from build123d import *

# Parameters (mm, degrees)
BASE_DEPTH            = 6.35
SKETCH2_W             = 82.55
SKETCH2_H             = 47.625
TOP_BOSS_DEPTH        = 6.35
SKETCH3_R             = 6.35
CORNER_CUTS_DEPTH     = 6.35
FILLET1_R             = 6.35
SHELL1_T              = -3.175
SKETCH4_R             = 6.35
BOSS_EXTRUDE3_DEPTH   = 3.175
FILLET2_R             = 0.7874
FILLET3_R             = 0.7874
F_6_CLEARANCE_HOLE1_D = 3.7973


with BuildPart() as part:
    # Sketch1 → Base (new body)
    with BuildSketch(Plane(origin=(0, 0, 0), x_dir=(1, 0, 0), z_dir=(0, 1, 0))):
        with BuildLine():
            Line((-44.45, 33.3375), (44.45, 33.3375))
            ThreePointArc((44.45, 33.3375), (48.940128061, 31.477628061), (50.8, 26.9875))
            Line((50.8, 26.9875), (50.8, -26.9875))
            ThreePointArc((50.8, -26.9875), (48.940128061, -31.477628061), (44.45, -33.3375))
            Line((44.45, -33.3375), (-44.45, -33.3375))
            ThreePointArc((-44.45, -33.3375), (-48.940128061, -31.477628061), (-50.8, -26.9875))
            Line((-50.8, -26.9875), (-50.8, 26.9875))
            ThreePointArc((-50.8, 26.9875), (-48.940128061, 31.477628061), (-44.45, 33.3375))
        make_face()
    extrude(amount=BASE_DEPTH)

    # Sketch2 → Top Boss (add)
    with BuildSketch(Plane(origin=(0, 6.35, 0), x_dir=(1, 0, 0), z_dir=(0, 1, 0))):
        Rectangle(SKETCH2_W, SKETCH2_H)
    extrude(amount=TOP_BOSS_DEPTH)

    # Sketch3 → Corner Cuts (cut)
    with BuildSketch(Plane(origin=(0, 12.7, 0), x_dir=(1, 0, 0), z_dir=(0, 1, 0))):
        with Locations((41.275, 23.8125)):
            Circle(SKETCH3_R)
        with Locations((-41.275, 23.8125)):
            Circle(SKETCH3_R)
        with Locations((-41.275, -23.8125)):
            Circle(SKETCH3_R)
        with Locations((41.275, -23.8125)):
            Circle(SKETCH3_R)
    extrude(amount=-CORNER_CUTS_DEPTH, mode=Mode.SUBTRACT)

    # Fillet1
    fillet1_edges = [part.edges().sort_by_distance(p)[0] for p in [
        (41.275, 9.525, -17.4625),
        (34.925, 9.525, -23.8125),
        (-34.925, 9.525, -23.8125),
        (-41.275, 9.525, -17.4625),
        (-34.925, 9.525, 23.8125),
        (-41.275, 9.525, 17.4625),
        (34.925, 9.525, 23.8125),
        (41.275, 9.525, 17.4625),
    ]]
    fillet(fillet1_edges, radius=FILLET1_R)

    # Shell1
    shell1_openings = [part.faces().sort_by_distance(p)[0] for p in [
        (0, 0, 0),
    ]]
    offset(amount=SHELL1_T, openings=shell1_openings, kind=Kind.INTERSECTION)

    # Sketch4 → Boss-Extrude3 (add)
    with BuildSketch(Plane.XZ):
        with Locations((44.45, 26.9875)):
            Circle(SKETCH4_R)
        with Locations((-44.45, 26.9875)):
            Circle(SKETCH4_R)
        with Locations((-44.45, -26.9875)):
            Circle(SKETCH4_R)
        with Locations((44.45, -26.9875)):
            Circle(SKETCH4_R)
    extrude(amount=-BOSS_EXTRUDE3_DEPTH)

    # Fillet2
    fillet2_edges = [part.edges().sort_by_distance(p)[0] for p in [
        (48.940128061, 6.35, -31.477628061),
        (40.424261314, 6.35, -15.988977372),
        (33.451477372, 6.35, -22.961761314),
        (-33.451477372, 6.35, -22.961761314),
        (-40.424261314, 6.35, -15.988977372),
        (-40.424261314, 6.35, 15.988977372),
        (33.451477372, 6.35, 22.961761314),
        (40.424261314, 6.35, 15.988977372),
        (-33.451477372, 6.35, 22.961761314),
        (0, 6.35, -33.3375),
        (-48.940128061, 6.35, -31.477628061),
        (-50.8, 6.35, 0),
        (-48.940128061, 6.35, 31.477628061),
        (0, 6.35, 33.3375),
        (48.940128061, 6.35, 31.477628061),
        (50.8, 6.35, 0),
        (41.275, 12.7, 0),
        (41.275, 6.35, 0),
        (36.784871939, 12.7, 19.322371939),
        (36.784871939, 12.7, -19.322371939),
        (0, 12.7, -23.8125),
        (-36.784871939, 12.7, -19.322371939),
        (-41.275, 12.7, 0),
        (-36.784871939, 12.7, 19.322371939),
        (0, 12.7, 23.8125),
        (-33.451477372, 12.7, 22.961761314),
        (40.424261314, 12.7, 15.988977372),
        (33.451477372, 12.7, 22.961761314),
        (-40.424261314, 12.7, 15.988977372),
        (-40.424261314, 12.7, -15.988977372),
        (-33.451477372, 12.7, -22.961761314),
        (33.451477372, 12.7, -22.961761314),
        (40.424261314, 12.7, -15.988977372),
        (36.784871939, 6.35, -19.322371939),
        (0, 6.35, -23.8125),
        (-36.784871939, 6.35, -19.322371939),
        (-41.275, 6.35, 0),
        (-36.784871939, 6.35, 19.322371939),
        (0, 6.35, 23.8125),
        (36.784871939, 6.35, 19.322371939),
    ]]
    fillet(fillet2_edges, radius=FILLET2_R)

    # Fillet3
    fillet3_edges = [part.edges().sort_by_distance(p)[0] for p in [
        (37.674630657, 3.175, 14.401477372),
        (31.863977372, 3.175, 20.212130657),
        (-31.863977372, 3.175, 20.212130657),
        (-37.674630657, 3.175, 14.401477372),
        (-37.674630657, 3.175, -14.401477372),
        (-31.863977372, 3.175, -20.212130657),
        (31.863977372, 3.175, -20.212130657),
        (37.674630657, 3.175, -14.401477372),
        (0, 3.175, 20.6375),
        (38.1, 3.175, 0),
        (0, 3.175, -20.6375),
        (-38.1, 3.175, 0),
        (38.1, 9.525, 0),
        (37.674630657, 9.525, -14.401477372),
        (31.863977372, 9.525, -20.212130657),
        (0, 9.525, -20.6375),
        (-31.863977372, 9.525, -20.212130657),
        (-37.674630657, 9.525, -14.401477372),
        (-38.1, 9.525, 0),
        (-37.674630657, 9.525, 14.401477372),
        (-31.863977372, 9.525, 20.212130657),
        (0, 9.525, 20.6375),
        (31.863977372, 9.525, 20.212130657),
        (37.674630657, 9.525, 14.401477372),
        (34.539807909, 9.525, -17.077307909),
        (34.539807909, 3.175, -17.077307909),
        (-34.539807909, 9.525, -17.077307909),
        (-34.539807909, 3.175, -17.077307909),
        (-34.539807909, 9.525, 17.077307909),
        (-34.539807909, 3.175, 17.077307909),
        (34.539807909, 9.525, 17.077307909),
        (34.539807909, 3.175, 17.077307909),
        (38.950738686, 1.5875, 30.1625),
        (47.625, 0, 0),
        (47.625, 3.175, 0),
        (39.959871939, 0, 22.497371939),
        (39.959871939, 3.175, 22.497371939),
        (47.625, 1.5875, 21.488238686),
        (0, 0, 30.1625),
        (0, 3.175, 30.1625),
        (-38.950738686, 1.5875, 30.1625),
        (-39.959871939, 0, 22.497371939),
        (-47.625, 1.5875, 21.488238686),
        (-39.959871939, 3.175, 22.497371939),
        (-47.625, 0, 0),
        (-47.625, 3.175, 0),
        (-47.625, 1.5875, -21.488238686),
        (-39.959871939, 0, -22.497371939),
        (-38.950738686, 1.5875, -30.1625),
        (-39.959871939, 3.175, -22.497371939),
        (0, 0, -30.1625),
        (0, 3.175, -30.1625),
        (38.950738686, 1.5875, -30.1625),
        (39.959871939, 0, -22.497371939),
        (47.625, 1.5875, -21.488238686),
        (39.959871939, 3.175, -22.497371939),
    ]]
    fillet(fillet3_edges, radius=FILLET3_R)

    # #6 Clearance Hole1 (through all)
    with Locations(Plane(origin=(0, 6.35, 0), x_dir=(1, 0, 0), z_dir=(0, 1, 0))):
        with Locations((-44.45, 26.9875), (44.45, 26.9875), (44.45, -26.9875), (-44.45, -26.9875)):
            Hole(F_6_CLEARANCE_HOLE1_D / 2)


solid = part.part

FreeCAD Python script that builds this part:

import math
import FreeCAD as App
import Part
import Sketcher

V = App.Vector
Q = App.Units.Quantity


def edges_at(feature, points):
    """Names of the edges that pass closest to the given points."""
    edges = feature.Shape.Edges
    near = lambda p: min(range(len(edges)), key=lambda i: edges[i].distToShape(Part.Vertex(*p))[0])
    return sorted({f"Edge{near(p) + 1}" for p in points})


def faces_at(feature, points):
    """Names of the faces that lie closest to the given points."""
    faces = feature.Shape.Faces
    near = lambda p: min(range(len(faces)), key=lambda i: faces[i].distToShape(Part.Vertex(*p))[0])
    return sorted({f"Face{near(p) + 1}" for p in points})


def add_polygon(sketch, points):
    """Adds a closed chain of lines whose ends are joined by coincident constraints."""
    first, n = sketch.GeometryCount, len(points)
    for a, b in zip(points, points[1:] + points[:1]):
        sketch.addGeometry(Part.LineSegment(App.Vector(*a, 0), App.Vector(*b, 0)), False)
    for i in range(n):
        sketch.addConstraint(Sketcher.Constraint("Coincident", first + i, 2, first + (i + 1) % n, 1))

doc = App.newDocument("Part")
params = doc.addObject("Spreadsheet::Sheet", "Params")
for row, (alias, value) in enumerate([
    ("sketch1_radius", "0.25 in"),
    ("sketch1_width", "3.5 in"),
    ("sketch1_height", "2.125 in"),
    ("pad1_length", "0.25 in"),
    ("sketch2_width", "3.25 in"),
    ("sketch2_height", "1.875 in"),
    ("pad2_length", "0.25 in"),
    ("sketch3_diameter", "0.5 in"),
    ("pocket1_length", "0.25 in"),
    ("fillet_radius", "0.25 in"),
    ("thickness_wall", "0.125 in"),
    ("sketch4_diameter", "0.5 in"),
    ("pad3_length", "0.125 in"),
    ("fillet2_radius", "0.031 in"),
    ("fillet3_radius", "0.031 in"),
    ("hole_diameter", "0.1495 in"),
], start=1):
    params.set(f"A{row}", alias)
    params.set(f"B{row}", "=" + value)
    params.setAlias(f"B{row}", alias)

body = doc.addObject("PartDesign::Body", "Body")

# Sketch on XZ plane
sketch1 = doc.addObject("Sketcher::SketchObject", "Sketch")
body.addObject(sketch1)
sketch1.AttachmentSupport = (doc.XZ_Plane, [""])
sketch1.MapMode = "FlatFace"
sketch1.addGeometry([
    Part.LineSegment(V(44, -33, 0), V(-44, -33, 0)),  # 0
    Part.ArcOfCircle(Part.Circle(V(-44, -27, 0), V(0, 0, 1), 6), math.radians(180), math.radians(270)),  # 1
    Part.LineSegment(V(-51, -27, 0), V(-51, 27, 0)),  # 2
    Part.ArcOfCircle(Part.Circle(V(-44, 27, 0), V(0, 0, 1), 6), math.radians(90), math.radians(180)),  # 3
    Part.LineSegment(V(-44, 33, 0), V(44, 33, 0)),  # 4
    Part.ArcOfCircle(Part.Circle(V(44, 27, 0), V(0, 0, 1), 6), math.radians(0), math.radians(90)),  # 5
    Part.LineSegment(V(51, 27, 0), V(51, -27, 0)),  # 6
    Part.ArcOfCircle(Part.Circle(V(44, -27, 0), V(0, 0, 1), 6), math.radians(-90), math.radians(0)),  # 7
], False)
sketch1.addConstraint([
    Sketcher.Constraint("Tangent", 0, 2, 1, 2),
    Sketcher.Constraint("Tangent", 1, 1, 2, 1),
    Sketcher.Constraint("Tangent", 2, 2, 3, 2),
    Sketcher.Constraint("Tangent", 3, 1, 4, 1),
    Sketcher.Constraint("Tangent", 4, 2, 5, 2),
    Sketcher.Constraint("Tangent", 5, 1, 6, 1),
    Sketcher.Constraint("Tangent", 6, 2, 7, 2),
    Sketcher.Constraint("Tangent", 7, 1, 0, 1),
    Sketcher.Constraint("Horizontal", 0),
    Sketcher.Constraint("Vertical", 2),
    Sketcher.Constraint("Horizontal", 4),
    Sketcher.Constraint("Vertical", 6),
    Sketcher.Constraint("Equal", 1, 3),
    Sketcher.Constraint("Equal", 3, 5),
    Sketcher.Constraint("Equal", 5, 7),
    Sketcher.Constraint("Symmetric", 1, 3, 5, 3, -1, 1),
    Sketcher.Constraint("Radius", 1, Q("0.25 in")),
    Sketcher.Constraint("DistanceX", 0, 2, 0, 1, Q("3.5 in")),
    Sketcher.Constraint("DistanceY", 2, 1, 2, 2, Q("2.125 in")),
])
sketch1.setExpression("Constraints[16]", "Params.sketch1_radius")
sketch1.setExpression("Constraints[17]", "Params.sketch1_width")
sketch1.setExpression("Constraints[18]", "Params.sketch1_height")
pad1 = doc.addObject("PartDesign::Pad", "Pad")
body.addObject(pad1)
pad1.Profile = sketch1
pad1.setExpression("Length", "Params.pad1_length")
pad1.Reversed = True

# Sketch on XZ plane
sketch2 = doc.addObject("Sketcher::SketchObject", "Sketch001")
body.addObject(sketch2)
sketch2.AttachmentSupport = (doc.XZ_Plane, [""])
sketch2.MapMode = "FlatFace"
sketch2.AttachmentOffset = App.Placement(V(0, 0, -0.25 * 25.4), App.Rotation())
add_polygon(sketch2, [(-41, -24), (-41, 24), (41, 24), (41, -24)])  # lines 0-3
sketch2.addConstraint([
    Sketcher.Constraint("Vertical", 0),
    Sketcher.Constraint("Horizontal", 1),
    Sketcher.Constraint("Vertical", 2),
    Sketcher.Constraint("Horizontal", 3),
    Sketcher.Constraint("Symmetric", 0, 2, 2, 2, -1, 1),
    Sketcher.Constraint("DistanceX", 1, 1, 1, 2, Q("3.25 in")),
    Sketcher.Constraint("DistanceY", 0, 1, 0, 2, Q("1.875 in")),
])
sketch2.setExpression("Constraints[9]", "Params.sketch2_width")
sketch2.setExpression("Constraints[10]", "Params.sketch2_height")
pad2 = doc.addObject("PartDesign::Pad", "Pad001")
body.addObject(pad2)
pad2.Profile = sketch2
pad2.setExpression("Length", "Params.pad2_length")
pad2.Reversed = True

# Sketch on XZ plane
sketch3 = doc.addObject("Sketcher::SketchObject", "Sketch002")
body.addObject(sketch3)
sketch3.AttachmentSupport = (doc.XZ_Plane, [""])
sketch3.MapMode = "FlatFace"
sketch3.AttachmentOffset = App.Placement(V(0, 0, -0.5 * 25.4), App.Rotation())
sketch3.addGeometry([
    Part.Circle(V(41, -24, 0), V(0, 0, 1), 6),
    Part.Circle(V(-41, -24, 0), V(0, 0, 1), 6),
    Part.Circle(V(-41, 24, 0), V(0, 0, 1), 6),
    Part.Circle(V(41, 24, 0), V(0, 0, 1), 6),
], False)
sketch3.addConstraint([
    Sketcher.Constraint("Equal", 0, 1),
    Sketcher.Constraint("Equal", 1, 2),
    Sketcher.Constraint("Equal", 2, 3),
    Sketcher.Constraint("Symmetric", 0, 3, 2, 3, -1, 1),
    Sketcher.Constraint("Symmetric", 1, 3, 3, 3, -1, 1),
    Sketcher.Constraint("Symmetric", 0, 3, 1, 3, -2),
    Sketcher.Constraint("Diameter", 0, Q("0.5 in")),
    Sketcher.Constraint("DistanceX", 1, 3, 0, 3, Q("3.25 in")),
    Sketcher.Constraint("DistanceY", 0, 3, -1, 1, Q("0.9375 in")),
])
sketch3.setExpression("Constraints[6]", "Params.sketch3_diameter")
pocket1 = doc.addObject("PartDesign::Pocket", "Pocket")
body.addObject(pocket1)
pocket1.Profile = sketch3
pocket1.setExpression("Length", "Params.pocket1_length")
pocket1.Reversed = True
doc.recompute()

fillet = doc.addObject("PartDesign::Fillet", "Fillet")
body.addObject(fillet)
fillet.Base = (pocket1, edges_at(pocket1, [
    (41.275, 9.525, -17.462),
    (34.925, 9.525, -23.812),
    (-34.925, 9.525, -23.812),
    (-41.275, 9.525, -17.462),
    (-34.925, 9.525, 23.812),
    (-41.275, 9.525, 17.462),
    (34.925, 9.525, 23.812),
    (41.275, 9.525, 17.462),
]))
fillet.setExpression("Radius", "Params.fillet_radius")
doc.recompute()

thickness = doc.addObject("PartDesign::Thickness", "Thickness")
body.addObject(thickness)
thickness.Base = (fillet, faces_at(fillet, [(0, 0, 0)]))
thickness.setExpression("Value", "Params.thickness_wall")
thickness.Reversed = True
thickness.Join = "Intersection"

# Sketch on XZ plane
sketch4 = doc.addObject("Sketcher::SketchObject", "Sketch003")
body.addObject(sketch4)
sketch4.AttachmentSupport = (doc.XZ_Plane, [""])
sketch4.MapMode = "FlatFace"
sketch4.addGeometry([
    Part.Circle(V(44, 27, 0), V(0, 0, 1), 6),
    Part.Circle(V(-44, 27, 0), V(0, 0, 1), 6),
    Part.Circle(V(-44, -27, 0), V(0, 0, 1), 6),
    Part.Circle(V(44, -27, 0), V(0, 0, 1), 6),
], False)
sketch4.addConstraint([
    Sketcher.Constraint("Equal", 0, 1),
    Sketcher.Constraint("Equal", 1, 2),
    Sketcher.Constraint("Equal", 2, 3),
    Sketcher.Constraint("Symmetric", 0, 3, 2, 3, -1, 1),
    Sketcher.Constraint("Symmetric", 1, 3, 3, 3, -1, 1),
    Sketcher.Constraint("Symmetric", 0, 3, 1, 3, -2),
    Sketcher.Constraint("Diameter", 0, Q("0.5 in")),
    Sketcher.Constraint("DistanceX", 1, 3, 0, 3, Q("3.5 in")),
    Sketcher.Constraint("DistanceY", -1, 1, 0, 3, Q("1.0625 in")),
])
sketch4.setExpression("Constraints[6]", "Params.sketch4_diameter")
pad3 = doc.addObject("PartDesign::Pad", "Pad002")
body.addObject(pad3)
pad3.Profile = sketch4
pad3.setExpression("Length", "Params.pad3_length")
pad3.Reversed = True
doc.recompute()

fillet2 = doc.addObject("PartDesign::Fillet", "Fillet001")
body.addObject(fillet2)
fillet2.Base = (pad3, edges_at(pad3, [
    (48.94, 6.35, -31.478),
    (40.424, 6.35, -15.989),
    (33.451, 6.35, -22.962),
    (-33.451, 6.35, -22.962),
    (-40.424, 6.35, -15.989),
    (-40.424, 6.35, 15.989),
    (33.451, 6.35, 22.962),
    (40.424, 6.35, 15.989),
    (-33.451, 6.35, 22.962),
    (0, 6.35, -33.337),
    (-48.94, 6.35, -31.478),
    (-50.8, 6.35, 0),
    (-48.94, 6.35, 31.478),
    (0, 6.35, 33.337),
    (48.94, 6.35, 31.478),
    (50.8, 6.35, 0),
    (41.275, 12.7, 0),
    (41.275, 6.35, 0),
    (36.785, 12.7, 19.322),
    (36.785, 12.7, -19.322),
    (0, 12.7, -23.812),
    (-36.785, 12.7, -19.322),
    (-41.275, 12.7, 0),
    (-36.785, 12.7, 19.322),
    (0, 12.7, 23.812),
    (-33.451, 12.7, 22.962),
    (40.424, 12.7, 15.989),
    (33.451, 12.7, 22.962),
    (-40.424, 12.7, 15.989),
    (-40.424, 12.7, -15.989),
    (-33.451, 12.7, -22.962),
    (33.451, 12.7, -22.962),
    (40.424, 12.7, -15.989),
    (36.785, 6.35, -19.322),
    (0, 6.35, -23.812),
    (-36.785, 6.35, -19.322),
    (-41.275, 6.35, 0),
    (-36.785, 6.35, 19.322),
    (0, 6.35, 23.812),
    (36.785, 6.35, 19.322),
]))
fillet2.setExpression("Radius", "Params.fillet2_radius")
doc.recompute()

fillet3 = doc.addObject("PartDesign::Fillet", "Fillet002")
body.addObject(fillet3)
fillet3.Base = (fillet2, edges_at(fillet2, [
    (37.675, 3.175, 14.401),
    (31.864, 3.175, 20.212),
    (-31.864, 3.175, 20.212),
    (-37.675, 3.175, 14.401),
    (-37.675, 3.175, -14.401),
    (-31.864, 3.175, -20.212),
    (31.864, 3.175, -20.212),
    (37.675, 3.175, -14.401),
    (0, 3.175, 20.637),
    (38.1, 3.175, 0),
    (0, 3.175, -20.637),
    (-38.1, 3.175, 0),
    (38.1, 9.525, 0),
    (37.675, 9.525, -14.401),
    (31.864, 9.525, -20.212),
    (0, 9.525, -20.637),
    (-31.864, 9.525, -20.212),
    (-37.675, 9.525, -14.401),
    (-38.1, 9.525, 0),
    (-37.675, 9.525, 14.401),
    (-31.864, 9.525, 20.212),
    (0, 9.525, 20.637),
    (31.864, 9.525, 20.212),
    (37.675, 9.525, 14.401),
    (34.54, 9.525, -17.077),
    (34.54, 3.175, -17.077),
    (-34.54, 9.525, -17.077),
    (-34.54, 3.175, -17.077),
    (-34.54, 9.525, 17.077),
    (-34.54, 3.175, 17.077),
    (34.54, 9.525, 17.077),
    (34.54, 3.175, 17.077),
    (38.951, 1.587, 30.163),
    (47.625, 0, 0),
    (47.625, 3.175, 0),
    (39.96, 0, 22.497),
    (39.96, 3.175, 22.497),
    (47.625, 1.587, 21.488),
    (0, 0, 30.163),
    (0, 3.175, 30.163),
    (-38.951, 1.587, 30.163),
    (-39.96, 0, 22.497),
    (-47.625, 1.587, 21.488),
    (-39.96, 3.175, 22.497),
    (-47.625, 0, 0),
    (-47.625, 3.175, 0),
    (-47.625, 1.587, -21.488),
    (-39.96, 0, -22.497),
    (-38.951, 1.587, -30.163),
    (-39.96, 3.175, -22.497),
    (0, 0, -30.163),
    (0, 3.175, -30.163),
    (38.951, 1.587, -30.163),
    (39.96, 0, -22.497),
    (47.625, 1.587, -21.488),
    (39.96, 3.175, -22.497),
]))
fillet3.setExpression("Radius", "Params.fillet3_radius")

# Sketch on XZ plane
sketch5 = doc.addObject("Sketcher::SketchObject", "Sketch004")
body.addObject(sketch5)
sketch5.AttachmentSupport = (doc.XZ_Plane, [""])
sketch5.MapMode = "FlatFace"
sketch5.AttachmentOffset = App.Placement(V(0, 0, -0.25 * 25.4), App.Rotation())
sketch5.addGeometry([
    Part.Circle(V(-44.5, -27, 0), V(0, 0, 1), 1.9),
    Part.Circle(V(44.5, -27, 0), V(0, 0, 1), 1.9),
    Part.Circle(V(44.5, 27, 0), V(0, 0, 1), 1.9),
    Part.Circle(V(-44.5, 27, 0), V(0, 0, 1), 1.9),
], False)
sketch5.addConstraint([
    Sketcher.Constraint("Equal", 0, 1),
    Sketcher.Constraint("Equal", 1, 2),
    Sketcher.Constraint("Equal", 2, 3),
    Sketcher.Constraint("Symmetric", 0, 3, 2, 3, -1, 1),
    Sketcher.Constraint("Symmetric", 1, 3, 3, 3, -1, 1),
    Sketcher.Constraint("Symmetric", 0, 3, 1, 3, -2),
    Sketcher.Constraint("Diameter", 0, Q("0.1495 in")),
    Sketcher.Constraint("DistanceX", 0, 3, 1, 3, Q("3.5 in")),
    Sketcher.Constraint("DistanceY", 0, 3, -1, 1, Q("1.0625 in")),
])
doc.recompute()
hole = doc.addObject("PartDesign::Hole", "Hole")
body.addObject(hole)
hole.Profile = sketch5
hole.ThreadType = "None"
hole.setExpression("Diameter", "Params.hole_diameter")
hole.DepthType = "ThroughAll"
hole.Reversed = True

doc.recompute()
